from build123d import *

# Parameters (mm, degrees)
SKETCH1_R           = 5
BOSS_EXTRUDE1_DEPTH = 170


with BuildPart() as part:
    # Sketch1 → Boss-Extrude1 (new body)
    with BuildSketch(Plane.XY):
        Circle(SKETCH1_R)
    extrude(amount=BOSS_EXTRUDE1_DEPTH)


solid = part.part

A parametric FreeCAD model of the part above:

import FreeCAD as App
import Part
import Sketcher

doc = App.newDocument("Part")
body = doc.addObject("PartDesign::Body", "Body")

# Sketch on XY plane
sketch1 = body.newObject("Sketcher::SketchObject", "Sketch")
sketch1.AttachmentSupport = (doc.getObject("XY_Plane"), [""])
sketch1.MapMode = "FlatFace"
sketch1.addGeometry(Part.Circle(App.Vector(0, 0, 0), App.Vector(0, 0, 1), 5), False)
sketch1.addConstraint([
    Sketcher.Constraint("Coincident", 0, 3, -1, 1),
    Sketcher.Constraint("Diameter", 0, 10.0),
])
pad1 = body.newObject("PartDesign::Pad", "Pad")
pad1.Profile = sketch1
pad1.Length = 170

doc.recompute()
